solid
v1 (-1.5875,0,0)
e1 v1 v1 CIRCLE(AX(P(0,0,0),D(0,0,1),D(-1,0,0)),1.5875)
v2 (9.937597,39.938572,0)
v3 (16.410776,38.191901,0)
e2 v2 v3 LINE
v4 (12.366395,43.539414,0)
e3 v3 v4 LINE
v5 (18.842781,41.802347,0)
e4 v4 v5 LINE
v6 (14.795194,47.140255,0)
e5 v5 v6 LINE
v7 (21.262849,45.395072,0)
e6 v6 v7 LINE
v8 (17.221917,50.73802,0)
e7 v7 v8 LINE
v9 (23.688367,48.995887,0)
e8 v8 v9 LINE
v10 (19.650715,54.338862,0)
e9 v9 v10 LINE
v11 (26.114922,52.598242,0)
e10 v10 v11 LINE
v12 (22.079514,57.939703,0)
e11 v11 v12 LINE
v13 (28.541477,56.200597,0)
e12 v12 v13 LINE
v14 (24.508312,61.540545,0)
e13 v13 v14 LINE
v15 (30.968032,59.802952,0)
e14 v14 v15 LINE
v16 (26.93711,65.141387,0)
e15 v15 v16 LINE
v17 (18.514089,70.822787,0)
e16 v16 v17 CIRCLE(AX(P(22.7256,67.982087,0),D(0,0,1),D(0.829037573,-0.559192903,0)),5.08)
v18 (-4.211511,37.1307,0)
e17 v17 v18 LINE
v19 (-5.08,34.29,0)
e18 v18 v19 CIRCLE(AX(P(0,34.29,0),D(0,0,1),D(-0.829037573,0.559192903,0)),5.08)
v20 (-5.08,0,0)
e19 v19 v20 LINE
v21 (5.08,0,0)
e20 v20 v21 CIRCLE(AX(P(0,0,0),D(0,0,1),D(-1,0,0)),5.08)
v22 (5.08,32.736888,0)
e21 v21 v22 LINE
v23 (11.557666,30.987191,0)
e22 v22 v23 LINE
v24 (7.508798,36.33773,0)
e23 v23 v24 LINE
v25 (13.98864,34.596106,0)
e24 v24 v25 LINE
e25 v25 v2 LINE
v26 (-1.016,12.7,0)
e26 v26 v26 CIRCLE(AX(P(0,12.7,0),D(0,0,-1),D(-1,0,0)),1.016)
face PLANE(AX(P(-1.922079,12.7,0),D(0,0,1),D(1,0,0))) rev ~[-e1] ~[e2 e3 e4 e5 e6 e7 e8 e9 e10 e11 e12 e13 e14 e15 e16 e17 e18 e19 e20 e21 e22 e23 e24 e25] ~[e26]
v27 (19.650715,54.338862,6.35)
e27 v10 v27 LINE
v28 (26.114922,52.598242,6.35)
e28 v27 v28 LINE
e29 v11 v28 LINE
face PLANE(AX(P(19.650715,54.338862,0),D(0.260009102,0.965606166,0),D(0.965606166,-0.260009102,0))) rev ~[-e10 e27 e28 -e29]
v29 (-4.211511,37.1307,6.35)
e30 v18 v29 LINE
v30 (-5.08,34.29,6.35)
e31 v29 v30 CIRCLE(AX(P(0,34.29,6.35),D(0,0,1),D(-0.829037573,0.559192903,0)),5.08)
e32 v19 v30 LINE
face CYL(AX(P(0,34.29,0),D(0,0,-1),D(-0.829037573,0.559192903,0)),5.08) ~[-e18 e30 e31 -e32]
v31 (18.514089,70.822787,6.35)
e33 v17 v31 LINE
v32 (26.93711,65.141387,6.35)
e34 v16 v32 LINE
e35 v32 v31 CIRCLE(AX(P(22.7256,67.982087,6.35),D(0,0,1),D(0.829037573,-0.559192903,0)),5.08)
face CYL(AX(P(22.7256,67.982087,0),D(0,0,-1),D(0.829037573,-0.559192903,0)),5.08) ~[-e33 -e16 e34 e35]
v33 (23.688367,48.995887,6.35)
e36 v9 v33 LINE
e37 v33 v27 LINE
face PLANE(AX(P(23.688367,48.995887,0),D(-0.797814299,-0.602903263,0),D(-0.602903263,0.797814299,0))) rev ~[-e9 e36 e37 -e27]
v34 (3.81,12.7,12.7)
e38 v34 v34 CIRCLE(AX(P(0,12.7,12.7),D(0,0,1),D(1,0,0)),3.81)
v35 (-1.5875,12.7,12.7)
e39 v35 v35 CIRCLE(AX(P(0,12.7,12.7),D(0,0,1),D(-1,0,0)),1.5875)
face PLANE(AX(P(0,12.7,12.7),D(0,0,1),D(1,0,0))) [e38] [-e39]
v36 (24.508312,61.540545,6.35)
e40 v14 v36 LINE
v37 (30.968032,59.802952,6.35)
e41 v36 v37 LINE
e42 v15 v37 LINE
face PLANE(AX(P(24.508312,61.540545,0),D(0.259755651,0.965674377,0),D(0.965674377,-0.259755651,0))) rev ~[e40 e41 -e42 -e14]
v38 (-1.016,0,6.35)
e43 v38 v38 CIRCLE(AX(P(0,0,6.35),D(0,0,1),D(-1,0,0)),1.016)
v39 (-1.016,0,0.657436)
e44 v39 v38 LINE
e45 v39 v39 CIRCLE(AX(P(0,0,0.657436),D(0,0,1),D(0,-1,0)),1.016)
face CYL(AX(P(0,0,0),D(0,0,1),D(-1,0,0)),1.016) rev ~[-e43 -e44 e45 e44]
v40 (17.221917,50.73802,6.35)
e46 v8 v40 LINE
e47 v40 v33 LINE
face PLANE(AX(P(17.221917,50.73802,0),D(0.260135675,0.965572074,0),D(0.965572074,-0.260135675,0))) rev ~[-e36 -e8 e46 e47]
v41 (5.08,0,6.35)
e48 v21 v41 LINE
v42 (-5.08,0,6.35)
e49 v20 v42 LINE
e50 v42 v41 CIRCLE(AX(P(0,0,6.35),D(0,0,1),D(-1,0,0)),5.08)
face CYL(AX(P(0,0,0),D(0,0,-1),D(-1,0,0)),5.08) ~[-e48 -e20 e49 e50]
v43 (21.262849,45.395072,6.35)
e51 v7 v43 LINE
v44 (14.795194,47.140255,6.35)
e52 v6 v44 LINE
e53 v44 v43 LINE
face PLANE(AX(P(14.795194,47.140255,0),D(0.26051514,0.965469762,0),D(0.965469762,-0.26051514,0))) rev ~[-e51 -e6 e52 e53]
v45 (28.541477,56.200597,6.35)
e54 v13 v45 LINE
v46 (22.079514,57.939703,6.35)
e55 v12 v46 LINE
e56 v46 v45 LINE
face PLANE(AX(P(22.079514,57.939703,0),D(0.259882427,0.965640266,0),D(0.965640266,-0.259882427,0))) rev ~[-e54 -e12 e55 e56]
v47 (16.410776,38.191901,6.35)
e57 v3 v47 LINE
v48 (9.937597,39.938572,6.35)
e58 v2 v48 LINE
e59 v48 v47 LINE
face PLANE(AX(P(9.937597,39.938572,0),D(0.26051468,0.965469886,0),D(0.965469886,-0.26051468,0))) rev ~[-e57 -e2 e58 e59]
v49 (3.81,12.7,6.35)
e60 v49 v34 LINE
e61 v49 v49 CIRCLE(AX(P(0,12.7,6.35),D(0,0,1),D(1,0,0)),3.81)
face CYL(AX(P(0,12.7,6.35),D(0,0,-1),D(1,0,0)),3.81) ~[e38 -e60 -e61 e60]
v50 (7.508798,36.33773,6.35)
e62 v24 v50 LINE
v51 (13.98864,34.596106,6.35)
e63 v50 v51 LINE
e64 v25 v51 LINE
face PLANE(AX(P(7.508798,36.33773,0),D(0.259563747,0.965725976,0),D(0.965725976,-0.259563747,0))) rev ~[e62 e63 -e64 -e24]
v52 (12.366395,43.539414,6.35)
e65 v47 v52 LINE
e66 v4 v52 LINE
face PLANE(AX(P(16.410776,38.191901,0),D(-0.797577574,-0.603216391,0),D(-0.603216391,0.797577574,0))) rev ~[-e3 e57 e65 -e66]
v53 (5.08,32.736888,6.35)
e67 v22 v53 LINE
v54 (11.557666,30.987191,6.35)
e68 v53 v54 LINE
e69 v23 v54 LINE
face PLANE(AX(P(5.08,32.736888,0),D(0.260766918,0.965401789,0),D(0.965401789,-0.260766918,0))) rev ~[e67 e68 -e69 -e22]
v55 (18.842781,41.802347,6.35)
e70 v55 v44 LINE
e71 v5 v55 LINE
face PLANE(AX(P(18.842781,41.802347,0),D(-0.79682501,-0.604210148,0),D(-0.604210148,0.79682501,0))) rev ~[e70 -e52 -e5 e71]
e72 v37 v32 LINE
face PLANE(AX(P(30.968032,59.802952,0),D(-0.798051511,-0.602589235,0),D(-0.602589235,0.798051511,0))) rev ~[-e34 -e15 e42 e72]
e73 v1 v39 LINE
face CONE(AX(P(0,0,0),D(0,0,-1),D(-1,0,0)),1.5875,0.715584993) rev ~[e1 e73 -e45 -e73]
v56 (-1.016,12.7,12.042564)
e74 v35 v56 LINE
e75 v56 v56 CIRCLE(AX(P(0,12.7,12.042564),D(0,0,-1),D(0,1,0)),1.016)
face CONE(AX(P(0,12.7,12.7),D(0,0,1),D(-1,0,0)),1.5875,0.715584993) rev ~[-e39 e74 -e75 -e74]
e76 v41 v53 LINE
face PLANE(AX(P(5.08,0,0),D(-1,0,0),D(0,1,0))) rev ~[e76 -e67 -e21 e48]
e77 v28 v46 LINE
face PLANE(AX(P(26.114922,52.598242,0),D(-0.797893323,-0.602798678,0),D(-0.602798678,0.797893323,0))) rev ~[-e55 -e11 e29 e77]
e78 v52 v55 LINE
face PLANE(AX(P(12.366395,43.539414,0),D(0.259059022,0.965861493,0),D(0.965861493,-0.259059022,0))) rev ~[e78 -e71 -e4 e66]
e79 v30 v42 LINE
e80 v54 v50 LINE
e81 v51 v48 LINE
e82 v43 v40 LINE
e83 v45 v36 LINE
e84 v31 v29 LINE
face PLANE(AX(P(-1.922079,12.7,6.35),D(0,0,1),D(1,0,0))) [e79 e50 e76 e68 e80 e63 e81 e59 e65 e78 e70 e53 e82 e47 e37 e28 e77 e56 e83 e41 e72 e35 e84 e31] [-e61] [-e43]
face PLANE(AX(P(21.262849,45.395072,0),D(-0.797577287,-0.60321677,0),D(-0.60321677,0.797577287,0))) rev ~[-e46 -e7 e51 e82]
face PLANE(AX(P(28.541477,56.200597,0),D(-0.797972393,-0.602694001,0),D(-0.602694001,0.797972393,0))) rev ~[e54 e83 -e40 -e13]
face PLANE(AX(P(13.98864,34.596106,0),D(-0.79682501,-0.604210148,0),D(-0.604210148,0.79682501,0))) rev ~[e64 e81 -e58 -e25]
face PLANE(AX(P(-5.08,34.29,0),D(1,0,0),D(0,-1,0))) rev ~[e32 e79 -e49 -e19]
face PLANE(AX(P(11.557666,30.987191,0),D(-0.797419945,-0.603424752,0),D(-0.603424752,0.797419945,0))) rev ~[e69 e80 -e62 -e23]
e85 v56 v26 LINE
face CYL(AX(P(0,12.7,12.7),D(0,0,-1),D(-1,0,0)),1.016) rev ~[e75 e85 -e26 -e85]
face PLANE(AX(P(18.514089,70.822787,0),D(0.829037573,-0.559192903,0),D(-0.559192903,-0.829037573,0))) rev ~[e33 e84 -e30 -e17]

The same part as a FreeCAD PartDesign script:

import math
import FreeCAD as App
import Part
import Sketcher
Q = App.Units.Quantity

doc = App.newDocument("Part")
body = doc.addObject("PartDesign::Body", "Body")

# Sketch on XY plane
sketch1 = doc.addObject("Sketcher::SketchObject", "Sketch")
body.addObject(sketch1)
sketch1.AttachmentSupport = (doc.XY_Plane, [""])
sketch1.MapMode = "FlatFace"
sketch1.addGeometry([
    Part.ArcOfCircle(Part.Circle(App.Vector(0, 0, 0), App.Vector(0, 0, 1), 5.1), math.radians(180), math.radians(360)),  # 0
    Part.LineSegment(App.Vector(5.1, 0, 0), App.Vector(5.1, 32.7, 0)),  # 1
    Part.LineSegment(App.Vector(5.1, 32.7, 0), App.Vector(11.6, 31, 0)),  # 2
    Part.LineSegment(App.Vector(11.6, 31, 0), App.Vector(7.5, 36.3, 0)),  # 3
    Part.LineSegment(App.Vector(7.5, 36.3, 0), App.Vector(14, 34.6, 0)),  # 4
    Part.LineSegment(App.Vector(14, 34.6, 0), App.Vector(9.9, 39.9, 0)),  # 5
    Part.LineSegment(App.Vector(9.9, 39.9, 0), App.Vector(16.4, 38.2, 0)),  # 6
    Part.LineSegment(App.Vector(16.4, 38.2, 0), App.Vector(12.4, 43.5, 0)),  # 7
    Part.LineSegment(App.Vector(12.4, 43.5, 0), App.Vector(18.8, 41.8, 0)),  # 8
    Part.LineSegment(App.Vector(18.8, 41.8, 0), App.Vector(14.8, 47.1, 0)),  # 9
    Part.LineSegment(App.Vector(14.8, 47.1, 0), App.Vector(21.3, 45.4, 0)),  # 10
    Part.LineSegment(App.Vector(21.3, 45.4, 0), App.Vector(17.2, 50.7, 0)),  # 11
    Part.LineSegment(App.Vector(17.2, 50.7, 0), App.Vector(23.7, 49, 0)),  # 12
    Part.LineSegment(App.Vector(23.7, 49, 0), App.Vector(19.7, 54.3, 0)),  # 13
    Part.LineSegment(App.Vector(19.7, 54.3, 0), App.Vector(26.1, 52.6, 0)),  # 14
    Part.LineSegment(App.Vector(26.1, 52.6, 0), App.Vector(22.1, 57.9, 0)),  # 15
    Part.LineSegment(App.Vector(22.1, 57.9, 0), App.Vector(28.5, 56.2, 0)),  # 16
    Part.LineSegment(App.Vector(28.5, 56.2, 0), App.Vector(24.5, 61.5, 0)),  # 17
    Part.LineSegment(App.Vector(24.5, 61.5, 0), App.Vector(31, 59.8, 0)),  # 18
    Part.LineSegment(App.Vector(31, 59.8, 0), App.Vector(26.9, 65.1, 0)),  # 19
    Part.ArcOfCircle(Part.Circle(App.Vector(22.7, 68, 0), App.Vector(0, 0, 1), 5.1), math.radians(-34), math.radians(146)),  # 20
    Part.LineSegment(App.Vector(18.5, 70.8, 0), App.Vector(-4.2, 37.1, 0)),  # 21
    Part.ArcOfCircle(Part.Circle(App.Vector(0, 34.3, 0), App.Vector(0, 0, 1), 5.1), math.radians(146), math.radians(180)),  # 22
    Part.LineSegment(App.Vector(-5.1, 34.3, 0), App.Vector(-5.1, 0, 0)),  # 23
], False)
sketch1.addConstraint([
    Sketcher.Constraint("Tangent", 0, 2, 1, 1),
    Sketcher.Constraint("Coincident", 1, 2, 2, 1),
    Sketcher.Constraint("Coincident", 2, 2, 3, 1),
    Sketcher.Constraint("Coincident", 3, 2, 4, 1),
    Sketcher.Constraint("Coincident", 4, 2, 5, 1),
    Sketcher.Constraint("Coincident", 5, 2, 6, 1),
    Sketcher.Constraint("Coincident", 6, 2, 7, 1),
    Sketcher.Constraint("Coincident", 7, 2, 8, 1),
    Sketcher.Constraint("Coincident", 8, 2, 9, 1),
    Sketcher.Constraint("Coincident", 9, 2, 10, 1),
    Sketcher.Constraint("Coincident", 10, 2, 11, 1),
    Sketcher.Constraint("Coincident", 11, 2, 12, 1),
    Sketcher.Constraint("Coincident", 12, 2, 13, 1),
    Sketcher.Constraint("Coincident", 13, 2, 14, 1),
    Sketcher.Constraint("Coincident", 14, 2, 15, 1),
    Sketcher.Constraint("Coincident", 15, 2, 16, 1),
    Sketcher.Constraint("Coincident", 16, 2, 17, 1),
    Sketcher.Constraint("Coincident", 17, 2, 18, 1),
    Sketcher.Constraint("Coincident", 18, 2, 19, 1),
    Sketcher.Constraint("Coincident", 19, 2, 20, 1),
    Sketcher.Constraint("Tangent", 20, 2, 21, 1),
    Sketcher.Constraint("Tangent", 21, 2, 22, 1),
    Sketcher.Constraint("Tangent", 22, 2, 23, 1),
    Sketcher.Constraint("Tangent", 23, 2, 0, 1),
    Sketcher.Constraint("Vertical", 1),
    Sketcher.Constraint("Vertical", 23),
    Sketcher.Constraint("Coincident", 0, 3, -1, 1),
    Sketcher.Constraint("Equal", 0, 20),
    Sketcher.Constraint("Equal", 20, 22),
    Sketcher.Constraint("Parallel", 5, 9),
    Sketcher.Constraint("Parallel", 6, 10),
    Sketcher.Constraint("Parallel", 7, 11),
    Sketcher.Constraint("Equal", 2, 3),
    Sketcher.Constraint("Equal", 3, 4),
    Sketcher.Constraint("Equal", 5, 6),
    Sketcher.Constraint("Equal", 6, 7),
    Sketcher.Constraint("Equal", 9, 10),
    Sketcher.Constraint("Equal", 10, 11),
    Sketcher.Constraint("Equal", 12, 13),
    Sketcher.Constraint("Equal", 14, 15),
    Sketcher.Constraint("Equal", 16, 17),
    Sketcher.Constraint("Equal", 18, 19),
    Sketcher.Constraint("Radius", 0, Q("0.2 in")),
    Sketcher.Constraint("Angle", 21, Q("-124 deg")),
    Sketcher.Constraint("Distance", 21, Q("1.6 in")),
    Sketcher.Constraint("DistanceY", 23, 2, 23, 1, Q("1.35 in")),
    Sketcher.Constraint("DistanceY", 1, 1, 1, 2, Q("32.736888 mm")),
    Sketcher.Constraint("DistanceX", -1, 1, 3, 2, Q("7.508798 mm")),
    Sketcher.Constraint("DistanceY", -1, 1, 6, 2, Q("38.191901 mm")),
    Sketcher.Constraint("DistanceX", 3, 2, 5, 2, Q("2.428798 mm")),
    Sketcher.Constraint("DistanceX", 5, 2, 7, 2, Q("2.428798 mm")),
    Sketcher.Constraint("DistanceX", 7, 2, 9, 2, Q("2.428798 mm")),
    Sketcher.Constraint("DistanceY", 5, 2, 10, 2, Q("5.4565 mm")),
    Sketcher.Constraint("DistanceX", 11, 2, 13, 2, Q("2.428798 mm")),
    Sketcher.Constraint("DistanceX", 13, 2, 15, 2, Q("2.428798 mm")),
    Sketcher.Constraint("DistanceX", 15, 2, 17, 2, Q("2.428798 mm")),
    Sketcher.Constraint("DistanceX", 17, 2, 19, 2, Q("2.428798 mm")),
    Sketcher.Constraint("DistanceY", 19, 2, 20, 3, Q("2.8407 mm")),
    Sketcher.Constraint("Distance", 5, Q("6.704692 mm")),
    Sketcher.Constraint("DistanceY", -1, 1, 2, 2, Q("30.987191 mm")),
    Sketcher.Constraint("DistanceY", -1, 1, 3, 2, Q("36.33773 mm")),
    Sketcher.Constraint("DistanceX", -1, 1, 4, 2, Q("13.98864 mm")),
    Sketcher.Constraint("DistanceY", -1, 1, 13, 2, Q("54.338862 mm")),
    Sketcher.Constraint("DistanceX", 10, 2, 12, 2, Q("2.425518 mm")),
    Sketcher.Constraint("DistanceY", 14, 2, 13, 2, Q("1.740619 mm")),
    Sketcher.Constraint("DistanceX", 9, 2, 14, 2, Q("11.319728 mm")),
    Sketcher.Constraint("DistanceX", 12, 2, 16, 2, Q("4.85311 mm")),
    Sketcher.Constraint("DistanceY", 12, 2, 16, 2, Q("7.20471 mm")),
    Sketcher.Constraint("DistanceX", 17, 2, 18, 2, Q("6.45972 mm")),
])
pad1 = doc.addObject("PartDesign::Pad", "Pad")
body.addObject(pad1)
pad1.Profile = sketch1
pad1.Length = Q("0.25 in")

# Sketch on XY plane
sketch2 = doc.addObject("Sketcher::SketchObject", "Sketch001")
body.addObject(sketch2)
sketch2.AttachmentSupport = (doc.XY_Plane, [""])
sketch2.MapMode = "FlatFace"
sketch2.AttachmentOffset = App.Placement(App.Vector(0, 0, 0.25 * 25.4), App.Rotation())
sketch2.addGeometry(Part.Circle(App.Vector(0, 12.7, 0), App.Vector(0, 0, 1), 3.8), False)
sketch2.addConstraint([
    Sketcher.Constraint("PointOnObject", 0, 3, -2),
    Sketcher.Constraint("Diameter", 0, Q("0.3 in")),
    Sketcher.Constraint("DistanceY", -1, 1, 0, 3, Q("0.5 in")),
])
pad2 = doc.addObject("PartDesign::Pad", "Pad001")
body.addObject(pad2)
pad2.Profile = sketch2
pad2.Length = Q("0.25 in")

# Sketch on XY plane
sketch3 = doc.addObject("Sketcher::SketchObject", "Sketch002")
body.addObject(sketch3)
sketch3.AttachmentSupport = (doc.XY_Plane, [""])
sketch3.MapMode = "FlatFace"
sketch3.AttachmentOffset = App.Placement(App.Vector(0, 0, 0.5 * 25.4), App.Rotation())
sketch3.addGeometry(Part.Circle(App.Vector(0, 12.7, 0), App.Vector(0, 0, 1), 1), False)
sketch3.addConstraint([
    Sketcher.Constraint("PointOnObject", 0, 3, -2),
    Sketcher.Constraint("Diameter", 0, Q("0.08 in")),
    Sketcher.Constraint("DistanceY", -1, 1, 0, 3, Q("0.5 in")),
])
doc.recompute()
hole = doc.addObject("PartDesign::Hole", "Hole")
body.addObject(hole)
hole.Profile = sketch3
hole.ThreadType = "None"
hole.Diameter = Q("0.08 in")
hole.DepthType = "ThroughAll"
hole.HoleCutType = "Countersink"
hole.HoleCutDiameter = Q("0.125 in")
hole.HoleCutCountersinkAngle = 82

# Sketch on XY plane
sketch4 = doc.addObject("Sketcher::SketchObject", "Sketch003")
body.addObject(sketch4)
sketch4.AttachmentSupport = (doc.XY_Plane, [""])
sketch4.MapMode = "FlatFace"
sketch4.addGeometry(Part.Circle(App.Vector(0, 0, 0), App.Vector(0, 0, 1), 1), False)
sketch4.addConstraint([
    Sketcher.Constraint("Coincident", 0, 3, -1, 1),
    Sketcher.Constraint("Diameter", 0, Q("0.08 in")),
])
doc.recompute()
hole2 = doc.addObject("PartDesign::Hole", "Hole001")
body.addObject(hole2)
hole2.Profile = sketch4
hole2.ThreadType = "None"
hole2.Diameter = Q("0.08 in")
hole2.DepthType = "ThroughAll"
hole2.HoleCutType = "Countersink"
hole2.HoleCutDiameter = Q("0.125 in")
hole2.HoleCutCountersinkAngle = 82
hole2.Reversed = True

doc.recompute()
